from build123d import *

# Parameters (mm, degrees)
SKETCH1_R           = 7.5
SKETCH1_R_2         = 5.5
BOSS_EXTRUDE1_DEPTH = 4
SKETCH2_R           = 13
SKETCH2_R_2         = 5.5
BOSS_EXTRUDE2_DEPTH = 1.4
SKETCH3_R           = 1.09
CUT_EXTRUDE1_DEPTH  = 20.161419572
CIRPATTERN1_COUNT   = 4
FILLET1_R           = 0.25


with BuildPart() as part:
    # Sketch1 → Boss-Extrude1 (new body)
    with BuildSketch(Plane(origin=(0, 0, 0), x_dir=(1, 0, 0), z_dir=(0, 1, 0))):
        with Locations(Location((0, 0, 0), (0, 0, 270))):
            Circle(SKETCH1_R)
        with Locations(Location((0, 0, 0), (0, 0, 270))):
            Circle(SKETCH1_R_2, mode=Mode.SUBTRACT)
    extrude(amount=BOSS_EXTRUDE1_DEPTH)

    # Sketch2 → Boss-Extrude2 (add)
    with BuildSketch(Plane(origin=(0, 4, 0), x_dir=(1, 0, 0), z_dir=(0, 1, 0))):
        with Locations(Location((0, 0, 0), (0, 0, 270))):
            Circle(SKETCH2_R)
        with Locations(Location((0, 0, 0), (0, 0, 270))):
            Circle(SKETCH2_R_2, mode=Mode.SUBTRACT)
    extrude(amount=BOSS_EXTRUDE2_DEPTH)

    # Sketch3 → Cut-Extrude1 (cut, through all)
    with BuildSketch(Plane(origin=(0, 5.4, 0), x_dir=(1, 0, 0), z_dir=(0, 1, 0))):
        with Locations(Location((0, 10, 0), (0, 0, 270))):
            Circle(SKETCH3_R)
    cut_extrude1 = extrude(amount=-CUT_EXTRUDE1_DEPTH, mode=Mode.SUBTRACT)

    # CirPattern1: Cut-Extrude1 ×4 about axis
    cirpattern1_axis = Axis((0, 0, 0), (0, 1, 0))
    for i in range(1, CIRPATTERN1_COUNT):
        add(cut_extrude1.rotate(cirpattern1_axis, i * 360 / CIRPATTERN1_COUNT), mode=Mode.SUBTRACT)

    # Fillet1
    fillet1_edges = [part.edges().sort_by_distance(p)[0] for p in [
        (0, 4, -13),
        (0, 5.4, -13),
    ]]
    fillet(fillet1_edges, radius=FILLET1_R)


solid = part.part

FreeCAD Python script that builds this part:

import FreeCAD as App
import Part
import Sketcher

V = App.Vector


def edges_at(feature, points):
    """Names of the edges that pass closest to the given points."""
    edges = feature.Shape.Edges
    near = lambda p: min(range(len(edges)), key=lambda i: edges[i].distToShape(Part.Vertex(*p))[0])
    return sorted({f"Edge{near(p) + 1}" for p in points})

doc = App.newDocument("Part")
body = doc.addObject("PartDesign::Body", "Body")

sketch1 = body.newObject("Sketcher::SketchObject", "Sketch")
sketch1.AttachmentSupport = (doc.getObject("XZ_Plane"), [""])
sketch1.MapMode = "FlatFace"
sketch1.addGeometry([
    Part.Circle(V(0, 0, 0), V(0, 0, 1), 8),
    Part.Circle(V(0, 0, 0), V(0, 0, 1), 6),
], False)
sketch1.addConstraint([
    Sketcher.Constraint("Coincident", 0, 3, -1, 1),
    Sketcher.Constraint("Coincident", 1, 3, -1, 1),
    Sketcher.Constraint("Diameter", 0, 15.0),
    Sketcher.Constraint("Diameter", 1, 11.0),
])
pad1 = body.newObject("PartDesign::Pad", "Pad")
pad1.Profile = sketch1
pad1.Length = 4
pad1.Reversed = True

sketch2 = body.newObject("Sketcher::SketchObject", "Sketch001")
sketch2.AttachmentSupport = (doc.getObject("XZ_Plane"), [""])
sketch2.MapMode = "FlatFace"
sketch2.AttachmentOffset = App.Placement(V(0, 0, -4), App.Rotation())
sketch2.addGeometry([
    Part.Circle(V(0, 0, 0), V(0, 0, 1), 13),
    Part.Circle(V(0, 0, 0), V(0, 0, 1), 6),
], False)
sketch2.addConstraint([
    Sketcher.Constraint("Coincident", 0, 3, -1, 1),
    Sketcher.Constraint("Coincident", 1, 3, -1, 1),
    Sketcher.Constraint("Diameter", 0, 26.0),
    Sketcher.Constraint("Diameter", 1, 11.0),
])
pad2 = body.newObject("PartDesign::Pad", "Pad001")
pad2.Profile = sketch2
pad2.Length = 1.4
pad2.Reversed = True

sketch3 = body.newObject("Sketcher::SketchObject", "Sketch002")
sketch3.AttachmentSupport = (doc.getObject("XZ_Plane"), [""])
sketch3.MapMode = "FlatFace"
sketch3.AttachmentOffset = App.Placement(V(0, 0, -5.4), App.Rotation())
sketch3.addGeometry(Part.Circle(V(0, -10, 0), V(0, 0, 1), 1.1), False)
sketch3.addConstraint([
    Sketcher.Constraint("PointOnObject", 0, 3, -2),
    Sketcher.Constraint("Diameter", 0, 2.18),
    Sketcher.Constraint("DistanceY", 0, 3, -1, 1, 10.0),
])
pocket1 = body.newObject("PartDesign::Pocket", "Pocket")
pocket1.Profile = sketch3
pocket1.Type = "ThroughAll"
pocket1.Reversed = True
doc.recompute()

polarpattern = body.newObject("PartDesign::PolarPattern", "PolarPattern")
polarpattern.Originals = [pocket1]
polarpattern.Axis = (doc.getObject("Y_Axis"), [""])
polarpattern.Angle = 360
polarpattern.Occurrences = 4
body.Tip = polarpattern
doc.recompute()

fillet = body.newObject("PartDesign::Fillet", "Fillet")
fillet.Base = (polarpattern, edges_at(polarpattern, [(0, 4, -13), (0, 5.4, -13)]))
fillet.Radius = 0.25

doc.recompute()
